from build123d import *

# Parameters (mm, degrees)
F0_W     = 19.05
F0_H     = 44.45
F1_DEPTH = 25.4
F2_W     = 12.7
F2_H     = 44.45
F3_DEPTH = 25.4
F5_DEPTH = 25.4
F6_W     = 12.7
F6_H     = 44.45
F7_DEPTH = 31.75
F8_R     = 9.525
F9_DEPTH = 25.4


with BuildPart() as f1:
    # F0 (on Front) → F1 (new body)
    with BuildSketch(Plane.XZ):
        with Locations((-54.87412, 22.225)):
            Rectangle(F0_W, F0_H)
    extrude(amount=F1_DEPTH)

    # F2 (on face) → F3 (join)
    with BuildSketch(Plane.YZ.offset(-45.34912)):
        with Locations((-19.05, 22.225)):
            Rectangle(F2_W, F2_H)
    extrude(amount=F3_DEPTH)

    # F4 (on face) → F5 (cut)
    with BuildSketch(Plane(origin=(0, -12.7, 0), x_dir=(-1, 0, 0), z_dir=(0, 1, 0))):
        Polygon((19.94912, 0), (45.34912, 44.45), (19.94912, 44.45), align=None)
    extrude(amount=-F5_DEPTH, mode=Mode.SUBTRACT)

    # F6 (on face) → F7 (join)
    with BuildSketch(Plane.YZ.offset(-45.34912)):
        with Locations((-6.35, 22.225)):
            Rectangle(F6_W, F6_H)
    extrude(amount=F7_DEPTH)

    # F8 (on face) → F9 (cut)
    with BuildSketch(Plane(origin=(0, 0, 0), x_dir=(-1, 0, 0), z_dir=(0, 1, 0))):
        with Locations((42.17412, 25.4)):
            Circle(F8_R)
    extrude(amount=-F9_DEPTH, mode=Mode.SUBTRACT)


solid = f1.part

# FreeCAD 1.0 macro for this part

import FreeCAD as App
import Part
import Sketcher
from FreeCAD import Vector
Q = App.Units.Quantity


def add_polygon(sketch, points):
    """Adds a closed chain of lines whose ends are joined by coincident constraints."""
    first, n = sketch.GeometryCount, len(points)
    for a, b in zip(points, points[1:] + points[:1]):
        sketch.addGeometry(Part.LineSegment(App.Vector(*a, 0), App.Vector(*b, 0)), False)
    for i in range(n):
        sketch.addConstraint(Sketcher.Constraint("Coincident", first + i, 2, first + (i + 1) % n, 1))

doc = App.newDocument("Part")
body = doc.addObject("PartDesign::Body", "Body")

# Sketch on XZ plane
sketch1 = body.newObject("Sketcher::SketchObject", "Sketch")
sketch1.AttachmentSupport = (doc.getObject("XZ_Plane"), [""])
sketch1.MapMode = "FlatFace"
add_polygon(sketch1, [(-64.39912, 44.45), (-64.39912, 0), (-45.34912, 0), (-45.34912, 44.45)])  # lines 0-3
sketch1.addConstraint([
    Sketcher.Constraint("Vertical", 0),
    Sketcher.Constraint("Horizontal", 1),
    Sketcher.Constraint("Vertical", 2),
    Sketcher.Constraint("Horizontal", 3),
    Sketcher.Constraint("PointOnObject", 0, 2, -1),
    Sketcher.Constraint("DistanceX", 1, 1, 1, 2, Q("0.75 in")),
    Sketcher.Constraint("DistanceY", 0, 2, 0, 1, Q("1.75 in")),
    Sketcher.Constraint("DistanceX", 0, 2, -1, 1, Q("64.39912 mm")),
])
pad1 = body.newObject("PartDesign::Pad", "Pad")
pad1.Profile = sketch1
pad1.Length = Q("1 in")

# Sketch on YZ plane
sketch2 = body.newObject("Sketcher::SketchObject", "Sketch001")
sketch2.AttachmentSupport = (doc.getObject("YZ_Plane"), [""])
sketch2.MapMode = "FlatFace"
sketch2.AttachmentOffset = App.Placement(Vector(0, 0, -45.34912), App.Rotation())
add_polygon(sketch2, [(-25.4, 44.45), (-25.4, 0), (-12.7, 0), (-12.7, 44.45)])  # lines 0-3
sketch2.addConstraint([
    Sketcher.Constraint("Vertical", 0),
    Sketcher.Constraint("Horizontal", 1),
    Sketcher.Constraint("Vertical", 2),
    Sketcher.Constraint("Horizontal", 3),
    Sketcher.Constraint("PointOnObject", 0, 2, -1),
    Sketcher.Constraint("DistanceX", 1, 1, 1, 2, Q("0.5 in")),
    Sketcher.Constraint("DistanceX", 0, 2, -1, 1, Q("1 in")),
    Sketcher.Constraint("DistanceY", 0, 2, 0, 1, Q("1.75 in")),
])
pad2 = body.newObject("PartDesign::Pad", "Pad001")
pad2.Profile = sketch2
pad2.Length = Q("1 in")

# Sketch on XZ plane
sketch3 = body.newObject("Sketcher::SketchObject", "Sketch002")
sketch3.AttachmentSupport = (doc.getObject("XZ_Plane"), [""])
sketch3.MapMode = "FlatFace"
sketch3.AttachmentOffset = App.Placement(Vector(0, 0, 0.5 * 25.4), App.Rotation())
add_polygon(sketch3, [(-19.94912, 0), (-45.34912, 44.45), (-19.94912, 44.45)])  # lines 0-2
sketch3.addConstraint([
    Sketcher.Constraint("Horizontal", 1),
    Sketcher.Constraint("Vertical", 2),
    Sketcher.Constraint("PointOnObject", 2, 2, -1),
    Sketcher.Constraint("DistanceX", 1, 1, 1, 2, Q("1 in")),
    Sketcher.Constraint("DistanceY", 2, 2, 2, 1, Q("1.75 in")),
    Sketcher.Constraint("DistanceX", 0, 2, -1, 1, Q("45.34912 mm")),
])
pocket1 = body.newObject("PartDesign::Pocket", "Pocket")
pocket1.Profile = sketch3
pocket1.Length = Q("1 in")
pocket1.Reversed = True

# Sketch on YZ plane
sketch4 = body.newObject("Sketcher::SketchObject", "Sketch003")
sketch4.AttachmentSupport = (doc.getObject("YZ_Plane"), [""])
sketch4.MapMode = "FlatFace"
sketch4.AttachmentOffset = App.Placement(Vector(0, 0, -45.34912), App.Rotation())
add_polygon(sketch4, [(-12.7, 44.45), (-12.7, 0), (0, 0), (0, 44.45)])  # lines 0-3
sketch4.addConstraint([
    Sketcher.Constraint("Vertical", 0),
    Sketcher.Constraint("Horizontal", 1),
    Sketcher.Constraint("Vertical", 2),
    Sketcher.Constraint("Horizontal", 3),
    Sketcher.Constraint("Coincident", 1, 2, -1, 1),
    Sketcher.Constraint("DistanceX", 1, 1, 1, 2, Q("0.5 in")),
    Sketcher.Constraint("DistanceY", 0, 2, 0, 1, Q("1.75 in")),
])
pad3 = body.newObject("PartDesign::Pad", "Pad002")
pad3.Profile = sketch4
pad3.Length = Q("1.25 in")

# Sketch on XZ plane
sketch5 = body.newObject("Sketcher::SketchObject", "Sketch004")
sketch5.AttachmentSupport = (doc.getObject("XZ_Plane"), [""])
sketch5.MapMode = "FlatFace"
sketch5.addGeometry(Part.Circle(Vector(-42.17412, 25.4, 0), Vector(0, 0, 1), 9.525), False)
sketch5.addConstraint([
    Sketcher.Constraint("Diameter", 0, Q("0.75 in")),
    Sketcher.Constraint("DistanceY", -1, 1, 0, 3, Q("1 in")),
    Sketcher.Constraint("DistanceX", 0, 3, -1, 1, Q("42.17412 mm")),
])
pocket2 = body.newObject("PartDesign::Pocket", "Pocket001")
pocket2.Profile = sketch5
pocket2.Length = Q("1 in")
pocket2.Reversed = True

doc.recompute()
